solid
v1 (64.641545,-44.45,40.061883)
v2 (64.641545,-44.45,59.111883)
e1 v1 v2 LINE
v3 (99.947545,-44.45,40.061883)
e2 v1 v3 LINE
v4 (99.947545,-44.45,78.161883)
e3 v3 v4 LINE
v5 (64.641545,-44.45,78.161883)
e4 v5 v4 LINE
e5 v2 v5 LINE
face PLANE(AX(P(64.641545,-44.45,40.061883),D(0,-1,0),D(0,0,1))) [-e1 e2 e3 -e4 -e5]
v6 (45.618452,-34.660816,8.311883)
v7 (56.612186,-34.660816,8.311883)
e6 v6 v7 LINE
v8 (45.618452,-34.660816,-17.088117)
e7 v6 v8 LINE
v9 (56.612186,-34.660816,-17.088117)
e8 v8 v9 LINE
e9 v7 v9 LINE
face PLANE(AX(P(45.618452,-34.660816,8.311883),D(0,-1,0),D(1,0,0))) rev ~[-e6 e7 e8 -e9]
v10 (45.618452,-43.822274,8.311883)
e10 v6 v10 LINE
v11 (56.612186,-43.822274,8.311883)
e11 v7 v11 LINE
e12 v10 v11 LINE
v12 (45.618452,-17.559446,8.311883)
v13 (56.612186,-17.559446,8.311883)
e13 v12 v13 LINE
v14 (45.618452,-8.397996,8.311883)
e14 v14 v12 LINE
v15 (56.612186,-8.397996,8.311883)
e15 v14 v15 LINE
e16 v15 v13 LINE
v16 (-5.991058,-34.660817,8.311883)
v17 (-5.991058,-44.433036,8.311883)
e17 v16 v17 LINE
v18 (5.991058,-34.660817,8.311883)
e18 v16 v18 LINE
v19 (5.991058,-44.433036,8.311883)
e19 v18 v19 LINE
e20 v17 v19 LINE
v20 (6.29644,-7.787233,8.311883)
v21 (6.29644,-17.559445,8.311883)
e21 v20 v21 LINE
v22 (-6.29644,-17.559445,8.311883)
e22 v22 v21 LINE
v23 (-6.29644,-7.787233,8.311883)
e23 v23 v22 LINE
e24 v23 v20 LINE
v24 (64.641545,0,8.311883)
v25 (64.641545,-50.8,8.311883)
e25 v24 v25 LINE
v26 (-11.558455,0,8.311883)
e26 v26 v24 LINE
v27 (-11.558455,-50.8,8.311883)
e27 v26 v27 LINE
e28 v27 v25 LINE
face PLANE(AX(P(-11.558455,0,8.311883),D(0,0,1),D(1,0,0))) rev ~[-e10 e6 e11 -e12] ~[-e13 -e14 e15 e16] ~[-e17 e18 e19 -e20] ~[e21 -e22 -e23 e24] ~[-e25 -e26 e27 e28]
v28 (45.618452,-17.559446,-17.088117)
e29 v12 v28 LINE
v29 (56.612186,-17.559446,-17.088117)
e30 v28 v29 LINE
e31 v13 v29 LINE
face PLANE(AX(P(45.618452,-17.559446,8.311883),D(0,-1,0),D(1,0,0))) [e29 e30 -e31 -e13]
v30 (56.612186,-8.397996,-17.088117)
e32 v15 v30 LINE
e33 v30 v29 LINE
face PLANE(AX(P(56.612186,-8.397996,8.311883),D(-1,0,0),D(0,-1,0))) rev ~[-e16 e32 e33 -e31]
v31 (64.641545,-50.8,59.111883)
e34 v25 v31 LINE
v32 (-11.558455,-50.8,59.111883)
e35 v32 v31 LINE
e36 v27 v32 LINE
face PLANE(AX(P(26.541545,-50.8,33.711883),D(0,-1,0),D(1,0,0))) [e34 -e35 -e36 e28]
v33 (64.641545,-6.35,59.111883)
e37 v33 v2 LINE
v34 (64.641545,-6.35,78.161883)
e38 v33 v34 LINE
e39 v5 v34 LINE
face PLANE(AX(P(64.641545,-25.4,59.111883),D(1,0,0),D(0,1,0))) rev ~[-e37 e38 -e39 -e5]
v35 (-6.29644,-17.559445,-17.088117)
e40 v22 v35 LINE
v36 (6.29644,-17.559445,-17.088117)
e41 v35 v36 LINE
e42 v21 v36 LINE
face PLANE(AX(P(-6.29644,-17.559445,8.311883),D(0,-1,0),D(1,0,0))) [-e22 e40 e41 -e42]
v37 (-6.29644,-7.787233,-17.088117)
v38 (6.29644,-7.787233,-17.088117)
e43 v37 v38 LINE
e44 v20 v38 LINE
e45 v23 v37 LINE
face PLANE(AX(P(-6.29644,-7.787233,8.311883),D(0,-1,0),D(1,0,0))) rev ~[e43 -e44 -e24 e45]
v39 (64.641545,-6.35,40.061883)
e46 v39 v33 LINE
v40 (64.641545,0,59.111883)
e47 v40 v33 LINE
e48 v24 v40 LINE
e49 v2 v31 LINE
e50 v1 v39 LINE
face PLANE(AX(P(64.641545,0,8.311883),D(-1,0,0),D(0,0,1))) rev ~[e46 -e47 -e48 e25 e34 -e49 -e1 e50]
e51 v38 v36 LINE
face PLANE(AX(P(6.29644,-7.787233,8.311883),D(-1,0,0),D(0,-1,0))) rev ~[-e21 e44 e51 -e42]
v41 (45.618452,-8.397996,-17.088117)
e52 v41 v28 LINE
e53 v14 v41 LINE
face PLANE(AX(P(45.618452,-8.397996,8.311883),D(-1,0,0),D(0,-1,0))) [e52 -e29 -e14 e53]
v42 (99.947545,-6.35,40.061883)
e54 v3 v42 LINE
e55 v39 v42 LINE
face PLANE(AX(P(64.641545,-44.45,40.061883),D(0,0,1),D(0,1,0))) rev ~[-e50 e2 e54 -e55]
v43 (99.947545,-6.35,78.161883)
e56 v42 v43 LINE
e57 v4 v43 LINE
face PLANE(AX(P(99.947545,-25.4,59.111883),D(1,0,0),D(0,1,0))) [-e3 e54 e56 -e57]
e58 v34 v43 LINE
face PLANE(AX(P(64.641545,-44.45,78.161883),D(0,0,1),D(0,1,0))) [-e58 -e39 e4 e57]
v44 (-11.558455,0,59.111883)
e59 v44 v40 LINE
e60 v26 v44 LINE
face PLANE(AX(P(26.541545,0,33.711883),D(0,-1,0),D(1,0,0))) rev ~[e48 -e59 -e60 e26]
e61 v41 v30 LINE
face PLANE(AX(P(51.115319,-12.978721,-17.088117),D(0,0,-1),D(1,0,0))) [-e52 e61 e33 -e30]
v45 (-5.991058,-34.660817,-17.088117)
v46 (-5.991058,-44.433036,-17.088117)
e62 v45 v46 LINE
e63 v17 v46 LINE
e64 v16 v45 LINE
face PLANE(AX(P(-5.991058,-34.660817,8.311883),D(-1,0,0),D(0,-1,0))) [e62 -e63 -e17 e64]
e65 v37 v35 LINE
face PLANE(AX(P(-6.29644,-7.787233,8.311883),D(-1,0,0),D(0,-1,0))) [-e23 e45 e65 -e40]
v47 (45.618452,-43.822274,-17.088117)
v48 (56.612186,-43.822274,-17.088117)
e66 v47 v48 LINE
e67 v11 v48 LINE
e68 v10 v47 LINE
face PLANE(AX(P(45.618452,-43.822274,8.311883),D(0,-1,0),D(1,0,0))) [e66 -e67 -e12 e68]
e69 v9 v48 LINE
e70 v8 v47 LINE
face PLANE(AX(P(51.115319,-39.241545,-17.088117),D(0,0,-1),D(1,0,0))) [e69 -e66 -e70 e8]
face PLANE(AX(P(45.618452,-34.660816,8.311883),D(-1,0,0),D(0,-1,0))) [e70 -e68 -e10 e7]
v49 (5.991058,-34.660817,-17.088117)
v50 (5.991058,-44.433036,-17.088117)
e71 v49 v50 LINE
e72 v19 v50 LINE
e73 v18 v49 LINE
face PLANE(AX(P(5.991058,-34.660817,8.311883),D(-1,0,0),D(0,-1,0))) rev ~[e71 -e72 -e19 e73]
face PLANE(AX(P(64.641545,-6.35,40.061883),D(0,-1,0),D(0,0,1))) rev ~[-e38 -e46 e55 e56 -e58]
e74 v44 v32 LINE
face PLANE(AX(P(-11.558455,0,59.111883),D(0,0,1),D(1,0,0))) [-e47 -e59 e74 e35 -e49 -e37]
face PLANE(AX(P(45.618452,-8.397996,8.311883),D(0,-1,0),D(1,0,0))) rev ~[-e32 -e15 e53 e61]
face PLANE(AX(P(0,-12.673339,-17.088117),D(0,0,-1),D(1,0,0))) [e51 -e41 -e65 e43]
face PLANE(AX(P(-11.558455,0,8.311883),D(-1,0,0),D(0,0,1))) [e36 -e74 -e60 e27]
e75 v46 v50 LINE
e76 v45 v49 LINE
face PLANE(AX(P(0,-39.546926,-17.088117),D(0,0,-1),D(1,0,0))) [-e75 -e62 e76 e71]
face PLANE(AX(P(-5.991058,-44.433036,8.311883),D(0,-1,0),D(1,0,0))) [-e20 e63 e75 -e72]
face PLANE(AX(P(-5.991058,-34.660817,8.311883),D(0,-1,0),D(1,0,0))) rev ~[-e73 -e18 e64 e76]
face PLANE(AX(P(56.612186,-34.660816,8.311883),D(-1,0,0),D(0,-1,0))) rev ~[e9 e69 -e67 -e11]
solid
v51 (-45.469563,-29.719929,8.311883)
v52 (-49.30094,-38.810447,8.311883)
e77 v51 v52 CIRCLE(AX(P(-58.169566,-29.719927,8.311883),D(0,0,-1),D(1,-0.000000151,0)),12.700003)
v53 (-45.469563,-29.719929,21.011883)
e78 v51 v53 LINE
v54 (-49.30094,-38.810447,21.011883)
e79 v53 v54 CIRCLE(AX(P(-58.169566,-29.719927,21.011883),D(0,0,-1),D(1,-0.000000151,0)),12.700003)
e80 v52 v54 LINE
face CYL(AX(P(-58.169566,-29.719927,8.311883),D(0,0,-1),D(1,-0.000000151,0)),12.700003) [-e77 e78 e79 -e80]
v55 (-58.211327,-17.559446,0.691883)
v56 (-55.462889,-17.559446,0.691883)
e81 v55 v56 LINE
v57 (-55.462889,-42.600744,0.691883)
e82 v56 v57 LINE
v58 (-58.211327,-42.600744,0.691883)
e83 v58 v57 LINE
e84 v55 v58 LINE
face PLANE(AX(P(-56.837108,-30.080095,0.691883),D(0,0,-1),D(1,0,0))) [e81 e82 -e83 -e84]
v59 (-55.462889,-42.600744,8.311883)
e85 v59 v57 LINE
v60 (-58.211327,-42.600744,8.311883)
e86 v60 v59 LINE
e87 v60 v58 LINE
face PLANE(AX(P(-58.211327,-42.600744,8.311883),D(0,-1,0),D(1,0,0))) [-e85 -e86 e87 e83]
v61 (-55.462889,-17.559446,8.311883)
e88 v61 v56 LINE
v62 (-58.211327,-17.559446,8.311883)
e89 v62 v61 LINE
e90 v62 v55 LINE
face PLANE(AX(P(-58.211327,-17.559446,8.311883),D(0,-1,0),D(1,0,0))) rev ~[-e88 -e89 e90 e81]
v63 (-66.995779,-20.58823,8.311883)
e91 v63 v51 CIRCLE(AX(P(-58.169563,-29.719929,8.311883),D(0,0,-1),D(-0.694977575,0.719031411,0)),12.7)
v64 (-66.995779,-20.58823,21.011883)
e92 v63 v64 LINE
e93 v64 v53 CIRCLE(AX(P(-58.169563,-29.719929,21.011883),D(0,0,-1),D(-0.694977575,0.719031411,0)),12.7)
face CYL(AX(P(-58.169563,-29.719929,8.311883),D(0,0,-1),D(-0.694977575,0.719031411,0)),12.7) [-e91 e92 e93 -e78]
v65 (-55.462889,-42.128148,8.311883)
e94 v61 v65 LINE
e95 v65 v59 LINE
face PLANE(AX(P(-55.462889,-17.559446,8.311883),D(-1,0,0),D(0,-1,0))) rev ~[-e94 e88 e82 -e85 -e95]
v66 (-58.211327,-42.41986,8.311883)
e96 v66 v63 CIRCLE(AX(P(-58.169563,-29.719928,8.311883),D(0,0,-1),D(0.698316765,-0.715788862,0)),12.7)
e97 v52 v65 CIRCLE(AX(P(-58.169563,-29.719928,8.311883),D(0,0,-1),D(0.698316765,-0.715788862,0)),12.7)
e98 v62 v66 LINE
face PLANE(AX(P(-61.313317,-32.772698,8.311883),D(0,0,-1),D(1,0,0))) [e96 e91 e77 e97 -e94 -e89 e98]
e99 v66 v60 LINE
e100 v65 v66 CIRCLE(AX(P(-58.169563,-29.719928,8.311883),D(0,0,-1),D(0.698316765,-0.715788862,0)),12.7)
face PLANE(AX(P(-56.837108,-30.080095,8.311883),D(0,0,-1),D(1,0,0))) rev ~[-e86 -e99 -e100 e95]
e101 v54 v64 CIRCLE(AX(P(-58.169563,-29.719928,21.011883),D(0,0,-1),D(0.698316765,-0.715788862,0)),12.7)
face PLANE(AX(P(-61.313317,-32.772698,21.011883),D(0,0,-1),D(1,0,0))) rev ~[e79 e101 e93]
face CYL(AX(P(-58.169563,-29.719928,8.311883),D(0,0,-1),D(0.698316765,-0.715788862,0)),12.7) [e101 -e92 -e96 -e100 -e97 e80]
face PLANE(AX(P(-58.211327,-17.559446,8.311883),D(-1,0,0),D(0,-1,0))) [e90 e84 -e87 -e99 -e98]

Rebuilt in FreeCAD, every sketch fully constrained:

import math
import FreeCAD as App
import Part
import Sketcher
from FreeCAD import Vector
Q = App.Units.Quantity


def add_polygon(sketch, points):
    """Adds a closed chain of lines whose ends are joined by coincident constraints."""
    first, n = sketch.GeometryCount, len(points)
    for a, b in zip(points, points[1:] + points[:1]):
        sketch.addGeometry(Part.LineSegment(App.Vector(*a, 0), App.Vector(*b, 0)), False)
    for i in range(n):
        sketch.addConstraint(Sketcher.Constraint("Coincident", first + i, 2, first + (i + 1) % n, 1))

doc = App.newDocument("Part")
body = doc.addObject("PartDesign::Body", "Body")
body.AllowCompound = True

# Sketch on XZ plane
sketch1 = body.newObject("Sketcher::SketchObject", "Sketch")
sketch1.AttachmentSupport = (doc.getObject("XZ_Plane"), [""])
sketch1.MapMode = "FlatFace"
add_polygon(sketch1, [(-12, 59), (-12, 8), (65, 8), (65, 59)])  # lines 0-3
sketch1.addConstraint([
    Sketcher.Constraint("Vertical", 0),
    Sketcher.Constraint("Horizontal", 1),
    Sketcher.Constraint("Vertical", 2),
    Sketcher.Constraint("Horizontal", 3),
    Sketcher.Constraint("DistanceX", 1, 1, 1, 2, Q("3 in")),
    Sketcher.Constraint("DistanceY", 0, 2, 0, 1, Q("2 in")),
    Sketcher.Constraint("DistanceX", 0, 2, -1, 1, 11.558455),
    Sketcher.Constraint("DistanceY", -1, 1, 0, 2, 8.311883),
])
pad1 = body.newObject("PartDesign::Pad", "Pad")
pad1.Profile = sketch1
pad1.Length = Q("2 in")

# Sketch on YZ plane
sketch2 = body.newObject("Sketcher::SketchObject", "Sketch001")
sketch2.AttachmentSupport = (doc.getObject("YZ_Plane"), [""])
sketch2.MapMode = "FlatFace"
sketch2.AttachmentOffset = App.Placement(Vector(0, 0, 64.641545), App.Rotation())
add_polygon(sketch2, [(-44, 78), (-44, 40), (-6, 40), (-6, 78)])  # lines 0-3
sketch2.addConstraint([
    Sketcher.Constraint("Vertical", 0),
    Sketcher.Constraint("Horizontal", 1),
    Sketcher.Constraint("Vertical", 2),
    Sketcher.Constraint("Horizontal", 3),
    Sketcher.Constraint("Equal", 3, 0),
    Sketcher.Constraint("DistanceX", 1, 1, 1, 2, Q("1.5 in")),
    Sketcher.Constraint("DistanceX", 0, 2, -1, 1, Q("1.75 in")),
    Sketcher.Constraint("DistanceY", -1, 1, 0, 2, 40.061883),
])
pad2 = body.newObject("PartDesign::Pad", "Pad001")
pad2.Profile = sketch2
pad2.Length = Q("1.39 in")

# Sketch on XY plane
sketch3 = body.newObject("Sketcher::SketchObject", "Sketch002")
sketch3.AttachmentSupport = (doc.getObject("XY_Plane"), [""])
sketch3.MapMode = "FlatFace"
sketch3.AttachmentOffset = App.Placement(Vector(0, 0, 8.311883), App.Rotation())
add_polygon(sketch3, [(-6, -44), (-6, -35), (6, -35), (6, -44)])  # lines 0-3
add_polygon(sketch3, [(-6, -18), (-6, -8), (6, -8), (6, -18)])  # lines 4-7
add_polygon(sketch3, [(46, -44), (46, -35), (57, -35), (57, -44)])  # lines 8-11
add_polygon(sketch3, [(46, -18), (46, -8), (57, -8), (57, -18)])  # lines 12-15
sketch3.addConstraint([
    Sketcher.Constraint("Vertical", 0),
    Sketcher.Constraint("Horizontal", 1),
    Sketcher.Constraint("Vertical", 2),
    Sketcher.Constraint("Horizontal", 3),
    Sketcher.Constraint("Vertical", 4),
    Sketcher.Constraint("Horizontal", 5),
    Sketcher.Constraint("Vertical", 6),
    Sketcher.Constraint("Horizontal", 7),
    Sketcher.Constraint("Vertical", 8),
    Sketcher.Constraint("Horizontal", 9),
    Sketcher.Constraint("Vertical", 10),
    Sketcher.Constraint("Horizontal", 11),
    Sketcher.Constraint("Vertical", 12),
    Sketcher.Constraint("Horizontal", 13),
    Sketcher.Constraint("Vertical", 14),
    Sketcher.Constraint("Horizontal", 15),
    Sketcher.Constraint("Horizontal", 1, 2, 8, 2),
    Sketcher.Constraint("Horizontal", 7, 2, 14, 2),
    Sketcher.Constraint("Vertical", 11, 2, 12, 2),
    Sketcher.Constraint("Vertical", 10, 2, 13, 2),
    Sketcher.Constraint("DistanceX", 5, 1, 5, 2, 12.59288),
    Sketcher.Constraint("DistanceY", 0, 1, 0, 2, 9.772219),
    Sketcher.Constraint("DistanceY", 8, 1, 8, 2, 9.161458),
    Sketcher.Constraint("DistanceY", 12, 1, 12, 2, 9.16145),
    Sketcher.Constraint("DistanceX", 1, 1, 1, 2, 11.982116),
    Sketcher.Constraint("DistanceX", 9, 1, 9, 2, 10.993734),
    Sketcher.Constraint("DistanceY", 4, 1, 4, 2, 9.772213),
    Sketcher.Constraint("DistanceX", 4, 2, -1, 1, 6.29644),
    Sketcher.Constraint("DistanceX", -1, 1, 8, 2, 45.618452),
    Sketcher.Constraint("DistanceX", 4, 2, 0, 2, 0.305382),
    Sketcher.Constraint("DistanceY", 1, 2, 6, 2, 17.101371),
    Sketcher.Constraint("DistanceY", 0, 2, -1, 1, 34.660817),
])
pad3 = body.newObject("PartDesign::Pad", "Pad002")
pad3.Profile = sketch3
pad3.Length = Q("1 in")
pad3.Reversed = True

# Sketch on XY plane
sketch4 = body.newObject("Sketcher::SketchObject", "Sketch003")
sketch4.AttachmentSupport = (doc.getObject("XY_Plane"), [""])
sketch4.MapMode = "FlatFace"
sketch4.AttachmentOffset = App.Placement(Vector(0, 0, 8.311883), App.Rotation())
sketch4.addGeometry([
    Part.ArcOfCircle(Part.Circle(Vector(-58, -30, 0), Vector(0, 0, 1), 13), math.radians(134), math.radians(314)),
    Part.ArcOfCircle(Part.Circle(Vector(-58, -30, 0), Vector(0, 0, 1), 13), math.radians(0), math.radians(134)),
    Part.ArcOfCircle(Part.Circle(Vector(-58, -30, 0), Vector(0, 0, 1), 13), math.radians(-46), math.radians(0)),
    Part.Circle(Vector(24, -26, 0), Vector(0, 0, 1), 13),
], False)
sketch4.addConstraint([
    Sketcher.Constraint("Tangent", 0, 1, 1, 2),
    Sketcher.Constraint("Tangent", 1, 1, 2, 2),
    Sketcher.Constraint("Tangent", 2, 1, 0, 2),
    Sketcher.Constraint("Equal", 1, 3),
    Sketcher.Constraint("Horizontal", 2, 3, 1, 1),
    Sketcher.Constraint("Diameter", 3, Q("1 in")),
    Sketcher.Constraint("DistanceY", 0, 3, 0, 1, 9.131698),
    Sketcher.Constraint("DistanceY", 0, 3, -1, 1, 29.719928),
    Sketcher.Constraint("DistanceX", 0, 1, -1, 1, 66.995779),
    Sketcher.Constraint("DistanceX", 2, 1, -1, 1, 49.30094),
    Sketcher.Constraint("DistanceX", 0, 3, 3, 3, 81.792788),
    Sketcher.Constraint("DistanceY", 3, 3, -1, 1, 26.436275),
])
pad4 = body.newObject("PartDesign::Pad", "Pad003")
pad4.Profile = sketch4
pad4.Length = Q("0.5 in")

# Sketch on XY plane
sketch5 = body.newObject("Sketcher::SketchObject", "Sketch004")
sketch5.AttachmentSupport = (doc.getObject("XY_Plane"), [""])
sketch5.MapMode = "FlatFace"
sketch5.AttachmentOffset = App.Placement(Vector(0, 0, 8.311883), App.Rotation())
sketch5.addGeometry(Part.Circle(Vector(24, -26, 0), Vector(0, 0, 1), 13), False)
sketch5.addConstraint([
    Sketcher.Constraint("Diameter", 0, Q("1 in")),
    Sketcher.Constraint("DistanceX", -1, 1, 0, 3, 23.623225),
    Sketcher.Constraint("DistanceY", 0, 3, -1, 1, 26.436275),
])
pad5 = body.newObject("PartDesign::Pad", "Pad004")
pad5.Profile = sketch5
pad5.Length = Q("0.5 in")

# Sketch on XY plane
sketch6 = body.newObject("Sketcher::SketchObject", "Sketch005")
sketch6.AttachmentSupport = (doc.getObject("XY_Plane"), [""])
sketch6.MapMode = "FlatFace"
sketch6.AttachmentOffset = App.Placement(Vector(0, 0, 8.311883), App.Rotation())
add_polygon(sketch6, [(-58.2, -42.6), (-58.2, -17.6), (-55.5, -17.6), (-55.5, -42.6)])  # lines 0-3
sketch6.addConstraint([
    Sketcher.Constraint("Vertical", 0),
    Sketcher.Constraint("Horizontal", 1),
    Sketcher.Constraint("Vertical", 2),
    Sketcher.Constraint("Horizontal", 3),
    Sketcher.Constraint("DistanceX", 1, 1, 1, 2, 2.748438),
    Sketcher.Constraint("DistanceY", 0, 1, 0, 2, 25.041297),
    Sketcher.Constraint("DistanceX", 1, 2, -1, 1, 55.462889),
    Sketcher.Constraint("DistanceY", 0, 2, -1, 1, 17.559446),
])
pad6 = body.newObject("PartDesign::Pad", "Pad005")
pad6.Profile = sketch6
pad6.Length = Q("0.3 in")
pad6.Reversed = True

# Sketch on XY plane
sketch7 = body.newObject("Sketcher::SketchObject", "Sketch006")
sketch7.AttachmentSupport = (doc.getObject("XY_Plane"), [""])
sketch7.MapMode = "FlatFace"
sketch7.AttachmentOffset = App.Placement(Vector(0, 0, 8.311883), App.Rotation())
sketch7.addGeometry(Part.Circle(Vector(24, -26, 0), Vector(0, 0, 1), 13), False)
sketch7.addConstraint([
    Sketcher.Constraint("Diameter", 0, Q("1 in")),
    Sketcher.Constraint("DistanceX", -1, 1, 0, 3, 23.623225),
    Sketcher.Constraint("DistanceY", 0, 3, -1, 1, 26.436275),
])
pad7 = body.newObject("PartDesign::Pad", "Pad006")
pad7.Profile = sketch7
pad7.Length = Q("1 in")

doc.recompute()
